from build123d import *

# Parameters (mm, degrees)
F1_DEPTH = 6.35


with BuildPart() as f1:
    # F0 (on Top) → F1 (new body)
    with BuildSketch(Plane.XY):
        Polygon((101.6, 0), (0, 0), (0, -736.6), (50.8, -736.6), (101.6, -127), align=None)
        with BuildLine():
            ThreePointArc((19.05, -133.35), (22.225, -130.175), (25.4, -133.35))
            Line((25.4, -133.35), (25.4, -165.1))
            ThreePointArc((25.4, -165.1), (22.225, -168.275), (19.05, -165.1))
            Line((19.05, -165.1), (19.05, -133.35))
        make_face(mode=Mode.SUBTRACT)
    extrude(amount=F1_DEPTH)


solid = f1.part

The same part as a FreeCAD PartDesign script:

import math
import FreeCAD as App
import Part
import Sketcher
Q = App.Units.Quantity


def add_polygon(sketch, points):
    """Adds a closed chain of lines whose ends are joined by coincident constraints."""
    first, n = sketch.GeometryCount, len(points)
    for a, b in zip(points, points[1:] + points[:1]):
        sketch.addGeometry(Part.LineSegment(App.Vector(*a, 0), App.Vector(*b, 0)), False)
    for i in range(n):
        sketch.addConstraint(Sketcher.Constraint("Coincident", first + i, 2, first + (i + 1) % n, 1))

doc = App.newDocument("Part")
body = doc.addObject("PartDesign::Body", "Body")

# Sketch on XY plane
sketch1 = doc.addObject("Sketcher::SketchObject", "Sketch")
body.addObject(sketch1)
sketch1.AttachmentSupport = (doc.XY_Plane, [""])
sketch1.MapMode = "FlatFace"
add_polygon(sketch1, [(101.6, 0), (0, 0), (0, -736.6), (50.8, -736.6), (101.6, -127)])  # lines 0-4
sketch1.addGeometry(Part.LineSegment(App.Vector(19.1, -165.1, 0), App.Vector(19.1, -133.3, 0)), False)  # 5
sketch1.addGeometry(Part.ArcOfCircle(Part.Circle(App.Vector(22.2, -133.3, 0), App.Vector(0, 0, 1), 3.2), math.radians(0), math.radians(180)), False)  # 6
sketch1.addGeometry(Part.LineSegment(App.Vector(25.4, -133.3, 0), App.Vector(25.4, -165.1, 0)), False)  # 7
sketch1.addGeometry(Part.ArcOfCircle(Part.Circle(App.Vector(22.2, -165.1, 0), App.Vector(0, 0, 1), 3.2), math.radians(180), math.radians(360)), False)  # 8
sketch1.addConstraint([
    Sketcher.Constraint("Tangent", 5, 2, 6, 2),
    Sketcher.Constraint("Tangent", 6, 1, 7, 1),
    Sketcher.Constraint("Tangent", 7, 2, 8, 2),
    Sketcher.Constraint("Tangent", 8, 1, 5, 1),
    Sketcher.Constraint("Horizontal", 0),
    Sketcher.Constraint("Vertical", 1),
    Sketcher.Constraint("Horizontal", 2),
    Sketcher.Constraint("Vertical", 4),
    Sketcher.Constraint("Vertical", 5),
    Sketcher.Constraint("Vertical", 7),
    Sketcher.Constraint("Coincident", 0, 2, -1, 1),
    Sketcher.Constraint("DistanceX", 0, 2, 0, 1, Q("4 in")),
    Sketcher.Constraint("DistanceX", 2, 1, 2, 2, Q("2 in")),
    Sketcher.Constraint("DistanceY", 1, 2, 1, 1, Q("29 in")),
    Sketcher.Constraint("DistanceY", 4, 1, 4, 2, Q("5 in")),
    Sketcher.Constraint("DistanceX", -1, 1, 6, 1, Q("1 in")),
    Sketcher.Constraint("Radius", 6, Q("0.125 in")),
    Sketcher.Constraint("DistanceY", 5, 1, 5, 2, Q("1.25 in")),
    Sketcher.Constraint("DistanceY", 8, 3, -1, 1, Q("6.5 in")),
])
pad1 = doc.addObject("PartDesign::Pad", "Pad")
body.addObject(pad1)
pad1.Profile = sketch1
pad1.Length = Q("0.25 in")

doc.recompute()
